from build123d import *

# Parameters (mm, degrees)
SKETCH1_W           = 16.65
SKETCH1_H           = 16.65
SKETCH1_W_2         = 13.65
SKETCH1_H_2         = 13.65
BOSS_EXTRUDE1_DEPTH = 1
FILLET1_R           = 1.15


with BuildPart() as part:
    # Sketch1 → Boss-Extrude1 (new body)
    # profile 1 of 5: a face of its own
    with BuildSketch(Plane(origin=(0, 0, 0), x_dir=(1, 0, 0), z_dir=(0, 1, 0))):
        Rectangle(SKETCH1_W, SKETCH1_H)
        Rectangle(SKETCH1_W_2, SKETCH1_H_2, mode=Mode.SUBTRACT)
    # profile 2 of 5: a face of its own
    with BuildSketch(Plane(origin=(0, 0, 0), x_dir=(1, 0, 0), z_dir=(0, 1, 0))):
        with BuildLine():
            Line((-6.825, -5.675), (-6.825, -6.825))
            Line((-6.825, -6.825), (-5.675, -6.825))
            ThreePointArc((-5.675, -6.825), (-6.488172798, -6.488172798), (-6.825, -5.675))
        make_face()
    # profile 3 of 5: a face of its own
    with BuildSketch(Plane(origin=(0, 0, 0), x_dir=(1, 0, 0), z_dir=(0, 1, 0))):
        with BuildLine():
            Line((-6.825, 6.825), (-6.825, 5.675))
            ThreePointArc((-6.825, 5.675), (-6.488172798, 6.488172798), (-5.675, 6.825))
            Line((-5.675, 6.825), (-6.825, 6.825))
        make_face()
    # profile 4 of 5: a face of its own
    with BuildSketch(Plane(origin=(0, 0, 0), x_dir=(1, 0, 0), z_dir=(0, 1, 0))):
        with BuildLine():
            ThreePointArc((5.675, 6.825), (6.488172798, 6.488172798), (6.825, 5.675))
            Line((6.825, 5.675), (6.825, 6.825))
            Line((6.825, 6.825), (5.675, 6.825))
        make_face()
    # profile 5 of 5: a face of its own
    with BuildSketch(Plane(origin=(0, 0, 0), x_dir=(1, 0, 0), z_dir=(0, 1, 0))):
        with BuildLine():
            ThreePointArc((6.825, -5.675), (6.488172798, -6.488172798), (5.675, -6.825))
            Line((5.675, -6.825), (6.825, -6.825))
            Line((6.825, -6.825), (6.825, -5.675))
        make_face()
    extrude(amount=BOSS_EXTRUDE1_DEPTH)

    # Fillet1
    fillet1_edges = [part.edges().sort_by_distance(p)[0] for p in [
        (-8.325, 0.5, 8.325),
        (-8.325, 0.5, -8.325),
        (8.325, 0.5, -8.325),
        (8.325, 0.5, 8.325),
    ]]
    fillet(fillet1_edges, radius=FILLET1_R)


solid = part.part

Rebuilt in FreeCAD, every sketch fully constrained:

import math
import FreeCAD as App
import Part
import Sketcher
from FreeCAD import Vector
Q = App.Units.Quantity


def edges_at(feature, points):
    """Names of the edges that pass closest to the given points."""
    edges = feature.Shape.Edges
    near = lambda p: min(range(len(edges)), key=lambda i: edges[i].distToShape(Part.Vertex(*p))[0])
    return sorted({f"Edge{near(p) + 1}" for p in points})

doc = App.newDocument("Part")
params = doc.addObject("Spreadsheet::Sheet", "Params")
for row, (alias, value) in enumerate([
    ("sketch1_radius", "1.15 mm"),
    ("sketch1_width", "16.65 mm"),
    ("pad1_length", "1 mm"),
    ("fillet_radius", "1.15 mm"),
], start=1):
    params.set(f"A{row}", alias)
    params.set(f"B{row}", "=" + value)
    params.setAlias(f"B{row}", alias)

body = doc.addObject("PartDesign::Body", "Body")

# Sketch on XZ plane
sketch1 = body.newObject("Sketcher::SketchObject", "Sketch")
sketch1.AttachmentSupport = (doc.getObject("XZ_Plane"), [""])
sketch1.MapMode = "FlatFace"
sketch1.addGeometry(Part.LineSegment(Vector(-8.3, -8.3, 0), Vector(-8.3, 8.3, 0)), False)
sketch1.addGeometry(Part.LineSegment(Vector(-8.3, 8.3, 0), Vector(8.3, 8.3, 0)), False)
sketch1.addGeometry(Part.LineSegment(Vector(8.3, 8.3, 0), Vector(8.3, -8.3, 0)), False)
sketch1.addGeometry(Part.LineSegment(Vector(8.3, -8.3, 0), Vector(-8.3, -8.3, 0)), False)
sketch1.addGeometry(Part.LineSegment(Vector(5.7, 6.8, 0), Vector(-5.7, 6.8, 0)), False)
sketch1.addGeometry(Part.ArcOfCircle(Part.Circle(Vector(-5.7, 5.7, 0), Vector(0, 0, 1), 1.2), math.radians(90), math.radians(180)), False)
sketch1.addGeometry(Part.LineSegment(Vector(-6.8, 5.7, 0), Vector(-6.8, -5.7, 0)), False)
sketch1.addGeometry(Part.ArcOfCircle(Part.Circle(Vector(-5.7, -5.7, 0), Vector(0, 0, 1), 1.2), math.radians(-180), math.radians(-90)), False)
sketch1.addGeometry(Part.LineSegment(Vector(-5.7, -6.8, 0), Vector(5.7, -6.8, 0)), False)
sketch1.addGeometry(Part.ArcOfCircle(Part.Circle(Vector(5.7, -5.7, 0), Vector(0, 0, 1), 1.2), math.radians(-90), math.radians(0)), False)
sketch1.addGeometry(Part.LineSegment(Vector(6.8, -5.7, 0), Vector(6.8, 5.7, 0)), False)
sketch1.addGeometry(Part.ArcOfCircle(Part.Circle(Vector(5.7, 5.7, 0), Vector(0, 0, 1), 1.2), math.radians(0), math.radians(90)), False)
sketch1.addConstraint(Sketcher.Constraint("Coincident", 0, 2, 1, 1))
sketch1.addConstraint(Sketcher.Constraint("Coincident", 1, 2, 2, 1))
sketch1.addConstraint(Sketcher.Constraint("Coincident", 2, 2, 3, 1))
sketch1.addConstraint(Sketcher.Constraint("Coincident", 3, 2, 0, 1))
sketch1.addConstraint(Sketcher.Constraint("Tangent", 4, 2, 5, 1))
sketch1.addConstraint(Sketcher.Constraint("Tangent", 5, 2, 6, 1))
sketch1.addConstraint(Sketcher.Constraint("Tangent", 6, 2, 7, 1))
sketch1.addConstraint(Sketcher.Constraint("Tangent", 7, 2, 8, 1))
sketch1.addConstraint(Sketcher.Constraint("Tangent", 8, 2, 9, 1))
sketch1.addConstraint(Sketcher.Constraint("Tangent", 9, 2, 10, 1))
sketch1.addConstraint(Sketcher.Constraint("Tangent", 10, 2, 11, 1))
sketch1.addConstraint(Sketcher.Constraint("Tangent", 11, 2, 4, 1))
sketch1.addConstraint(Sketcher.Constraint("Vertical", 0))
sketch1.addConstraint(Sketcher.Constraint("Horizontal", 1))
sketch1.addConstraint(Sketcher.Constraint("Vertical", 2))
sketch1.addConstraint(Sketcher.Constraint("Horizontal", 3))
sketch1.addConstraint(Sketcher.Constraint("Horizontal", 4))
sketch1.addConstraint(Sketcher.Constraint("Vertical", 6))
sketch1.addConstraint(Sketcher.Constraint("Horizontal", 8))
sketch1.addConstraint(Sketcher.Constraint("Vertical", 10))
sketch1.addConstraint(Sketcher.Constraint("Equal", 5, 7))
sketch1.addConstraint(Sketcher.Constraint("Equal", 7, 9))
sketch1.addConstraint(Sketcher.Constraint("Equal", 9, 11))
sketch1.addConstraint(Sketcher.Constraint("Symmetric", 5, 3, 9, 3, -1, 1))
sketch1.addConstraint(Sketcher.Constraint("Symmetric", 0, 2, 2, 2, -1, 1))
sketch1.addConstraint(Sketcher.Constraint("Equal", 3, 0))
sketch1.addConstraint(Sketcher.Constraint("Equal", 8, 6))
sketch1.addConstraint(Sketcher.Constraint("Radius", 5, Q("1.15 mm")))
sketch1.addConstraint(Sketcher.Constraint("DistanceY", 7, 3, 0, 2, Q("14 mm")))
sketch1.addConstraint(Sketcher.Constraint("DistanceX", 1, 1, 1, 2, Q("16.65 mm")))
sketch1.setExpression("Constraints[27]", "Params.sketch1_radius")
sketch1.setExpression("Constraints[29]", "Params.sketch1_width")
pad1 = body.newObject("PartDesign::Pad", "Pad")
pad1.Profile = sketch1
pad1.setExpression("Length", "Params.pad1_length")
pad1.Reversed = True
doc.recompute()

fillet = body.newObject("PartDesign::Fillet", "Fillet")
fillet.Base = (pad1, edges_at(pad1, [
    (-8.325, 0.5, 8.325),
    (-8.325, 0.5, -8.325),
    (8.325, 0.5, -8.325),
    (8.325, 0.5, 8.325),
]))
fillet.setExpression("Radius", "Params.fillet_radius")

doc.recompute()
